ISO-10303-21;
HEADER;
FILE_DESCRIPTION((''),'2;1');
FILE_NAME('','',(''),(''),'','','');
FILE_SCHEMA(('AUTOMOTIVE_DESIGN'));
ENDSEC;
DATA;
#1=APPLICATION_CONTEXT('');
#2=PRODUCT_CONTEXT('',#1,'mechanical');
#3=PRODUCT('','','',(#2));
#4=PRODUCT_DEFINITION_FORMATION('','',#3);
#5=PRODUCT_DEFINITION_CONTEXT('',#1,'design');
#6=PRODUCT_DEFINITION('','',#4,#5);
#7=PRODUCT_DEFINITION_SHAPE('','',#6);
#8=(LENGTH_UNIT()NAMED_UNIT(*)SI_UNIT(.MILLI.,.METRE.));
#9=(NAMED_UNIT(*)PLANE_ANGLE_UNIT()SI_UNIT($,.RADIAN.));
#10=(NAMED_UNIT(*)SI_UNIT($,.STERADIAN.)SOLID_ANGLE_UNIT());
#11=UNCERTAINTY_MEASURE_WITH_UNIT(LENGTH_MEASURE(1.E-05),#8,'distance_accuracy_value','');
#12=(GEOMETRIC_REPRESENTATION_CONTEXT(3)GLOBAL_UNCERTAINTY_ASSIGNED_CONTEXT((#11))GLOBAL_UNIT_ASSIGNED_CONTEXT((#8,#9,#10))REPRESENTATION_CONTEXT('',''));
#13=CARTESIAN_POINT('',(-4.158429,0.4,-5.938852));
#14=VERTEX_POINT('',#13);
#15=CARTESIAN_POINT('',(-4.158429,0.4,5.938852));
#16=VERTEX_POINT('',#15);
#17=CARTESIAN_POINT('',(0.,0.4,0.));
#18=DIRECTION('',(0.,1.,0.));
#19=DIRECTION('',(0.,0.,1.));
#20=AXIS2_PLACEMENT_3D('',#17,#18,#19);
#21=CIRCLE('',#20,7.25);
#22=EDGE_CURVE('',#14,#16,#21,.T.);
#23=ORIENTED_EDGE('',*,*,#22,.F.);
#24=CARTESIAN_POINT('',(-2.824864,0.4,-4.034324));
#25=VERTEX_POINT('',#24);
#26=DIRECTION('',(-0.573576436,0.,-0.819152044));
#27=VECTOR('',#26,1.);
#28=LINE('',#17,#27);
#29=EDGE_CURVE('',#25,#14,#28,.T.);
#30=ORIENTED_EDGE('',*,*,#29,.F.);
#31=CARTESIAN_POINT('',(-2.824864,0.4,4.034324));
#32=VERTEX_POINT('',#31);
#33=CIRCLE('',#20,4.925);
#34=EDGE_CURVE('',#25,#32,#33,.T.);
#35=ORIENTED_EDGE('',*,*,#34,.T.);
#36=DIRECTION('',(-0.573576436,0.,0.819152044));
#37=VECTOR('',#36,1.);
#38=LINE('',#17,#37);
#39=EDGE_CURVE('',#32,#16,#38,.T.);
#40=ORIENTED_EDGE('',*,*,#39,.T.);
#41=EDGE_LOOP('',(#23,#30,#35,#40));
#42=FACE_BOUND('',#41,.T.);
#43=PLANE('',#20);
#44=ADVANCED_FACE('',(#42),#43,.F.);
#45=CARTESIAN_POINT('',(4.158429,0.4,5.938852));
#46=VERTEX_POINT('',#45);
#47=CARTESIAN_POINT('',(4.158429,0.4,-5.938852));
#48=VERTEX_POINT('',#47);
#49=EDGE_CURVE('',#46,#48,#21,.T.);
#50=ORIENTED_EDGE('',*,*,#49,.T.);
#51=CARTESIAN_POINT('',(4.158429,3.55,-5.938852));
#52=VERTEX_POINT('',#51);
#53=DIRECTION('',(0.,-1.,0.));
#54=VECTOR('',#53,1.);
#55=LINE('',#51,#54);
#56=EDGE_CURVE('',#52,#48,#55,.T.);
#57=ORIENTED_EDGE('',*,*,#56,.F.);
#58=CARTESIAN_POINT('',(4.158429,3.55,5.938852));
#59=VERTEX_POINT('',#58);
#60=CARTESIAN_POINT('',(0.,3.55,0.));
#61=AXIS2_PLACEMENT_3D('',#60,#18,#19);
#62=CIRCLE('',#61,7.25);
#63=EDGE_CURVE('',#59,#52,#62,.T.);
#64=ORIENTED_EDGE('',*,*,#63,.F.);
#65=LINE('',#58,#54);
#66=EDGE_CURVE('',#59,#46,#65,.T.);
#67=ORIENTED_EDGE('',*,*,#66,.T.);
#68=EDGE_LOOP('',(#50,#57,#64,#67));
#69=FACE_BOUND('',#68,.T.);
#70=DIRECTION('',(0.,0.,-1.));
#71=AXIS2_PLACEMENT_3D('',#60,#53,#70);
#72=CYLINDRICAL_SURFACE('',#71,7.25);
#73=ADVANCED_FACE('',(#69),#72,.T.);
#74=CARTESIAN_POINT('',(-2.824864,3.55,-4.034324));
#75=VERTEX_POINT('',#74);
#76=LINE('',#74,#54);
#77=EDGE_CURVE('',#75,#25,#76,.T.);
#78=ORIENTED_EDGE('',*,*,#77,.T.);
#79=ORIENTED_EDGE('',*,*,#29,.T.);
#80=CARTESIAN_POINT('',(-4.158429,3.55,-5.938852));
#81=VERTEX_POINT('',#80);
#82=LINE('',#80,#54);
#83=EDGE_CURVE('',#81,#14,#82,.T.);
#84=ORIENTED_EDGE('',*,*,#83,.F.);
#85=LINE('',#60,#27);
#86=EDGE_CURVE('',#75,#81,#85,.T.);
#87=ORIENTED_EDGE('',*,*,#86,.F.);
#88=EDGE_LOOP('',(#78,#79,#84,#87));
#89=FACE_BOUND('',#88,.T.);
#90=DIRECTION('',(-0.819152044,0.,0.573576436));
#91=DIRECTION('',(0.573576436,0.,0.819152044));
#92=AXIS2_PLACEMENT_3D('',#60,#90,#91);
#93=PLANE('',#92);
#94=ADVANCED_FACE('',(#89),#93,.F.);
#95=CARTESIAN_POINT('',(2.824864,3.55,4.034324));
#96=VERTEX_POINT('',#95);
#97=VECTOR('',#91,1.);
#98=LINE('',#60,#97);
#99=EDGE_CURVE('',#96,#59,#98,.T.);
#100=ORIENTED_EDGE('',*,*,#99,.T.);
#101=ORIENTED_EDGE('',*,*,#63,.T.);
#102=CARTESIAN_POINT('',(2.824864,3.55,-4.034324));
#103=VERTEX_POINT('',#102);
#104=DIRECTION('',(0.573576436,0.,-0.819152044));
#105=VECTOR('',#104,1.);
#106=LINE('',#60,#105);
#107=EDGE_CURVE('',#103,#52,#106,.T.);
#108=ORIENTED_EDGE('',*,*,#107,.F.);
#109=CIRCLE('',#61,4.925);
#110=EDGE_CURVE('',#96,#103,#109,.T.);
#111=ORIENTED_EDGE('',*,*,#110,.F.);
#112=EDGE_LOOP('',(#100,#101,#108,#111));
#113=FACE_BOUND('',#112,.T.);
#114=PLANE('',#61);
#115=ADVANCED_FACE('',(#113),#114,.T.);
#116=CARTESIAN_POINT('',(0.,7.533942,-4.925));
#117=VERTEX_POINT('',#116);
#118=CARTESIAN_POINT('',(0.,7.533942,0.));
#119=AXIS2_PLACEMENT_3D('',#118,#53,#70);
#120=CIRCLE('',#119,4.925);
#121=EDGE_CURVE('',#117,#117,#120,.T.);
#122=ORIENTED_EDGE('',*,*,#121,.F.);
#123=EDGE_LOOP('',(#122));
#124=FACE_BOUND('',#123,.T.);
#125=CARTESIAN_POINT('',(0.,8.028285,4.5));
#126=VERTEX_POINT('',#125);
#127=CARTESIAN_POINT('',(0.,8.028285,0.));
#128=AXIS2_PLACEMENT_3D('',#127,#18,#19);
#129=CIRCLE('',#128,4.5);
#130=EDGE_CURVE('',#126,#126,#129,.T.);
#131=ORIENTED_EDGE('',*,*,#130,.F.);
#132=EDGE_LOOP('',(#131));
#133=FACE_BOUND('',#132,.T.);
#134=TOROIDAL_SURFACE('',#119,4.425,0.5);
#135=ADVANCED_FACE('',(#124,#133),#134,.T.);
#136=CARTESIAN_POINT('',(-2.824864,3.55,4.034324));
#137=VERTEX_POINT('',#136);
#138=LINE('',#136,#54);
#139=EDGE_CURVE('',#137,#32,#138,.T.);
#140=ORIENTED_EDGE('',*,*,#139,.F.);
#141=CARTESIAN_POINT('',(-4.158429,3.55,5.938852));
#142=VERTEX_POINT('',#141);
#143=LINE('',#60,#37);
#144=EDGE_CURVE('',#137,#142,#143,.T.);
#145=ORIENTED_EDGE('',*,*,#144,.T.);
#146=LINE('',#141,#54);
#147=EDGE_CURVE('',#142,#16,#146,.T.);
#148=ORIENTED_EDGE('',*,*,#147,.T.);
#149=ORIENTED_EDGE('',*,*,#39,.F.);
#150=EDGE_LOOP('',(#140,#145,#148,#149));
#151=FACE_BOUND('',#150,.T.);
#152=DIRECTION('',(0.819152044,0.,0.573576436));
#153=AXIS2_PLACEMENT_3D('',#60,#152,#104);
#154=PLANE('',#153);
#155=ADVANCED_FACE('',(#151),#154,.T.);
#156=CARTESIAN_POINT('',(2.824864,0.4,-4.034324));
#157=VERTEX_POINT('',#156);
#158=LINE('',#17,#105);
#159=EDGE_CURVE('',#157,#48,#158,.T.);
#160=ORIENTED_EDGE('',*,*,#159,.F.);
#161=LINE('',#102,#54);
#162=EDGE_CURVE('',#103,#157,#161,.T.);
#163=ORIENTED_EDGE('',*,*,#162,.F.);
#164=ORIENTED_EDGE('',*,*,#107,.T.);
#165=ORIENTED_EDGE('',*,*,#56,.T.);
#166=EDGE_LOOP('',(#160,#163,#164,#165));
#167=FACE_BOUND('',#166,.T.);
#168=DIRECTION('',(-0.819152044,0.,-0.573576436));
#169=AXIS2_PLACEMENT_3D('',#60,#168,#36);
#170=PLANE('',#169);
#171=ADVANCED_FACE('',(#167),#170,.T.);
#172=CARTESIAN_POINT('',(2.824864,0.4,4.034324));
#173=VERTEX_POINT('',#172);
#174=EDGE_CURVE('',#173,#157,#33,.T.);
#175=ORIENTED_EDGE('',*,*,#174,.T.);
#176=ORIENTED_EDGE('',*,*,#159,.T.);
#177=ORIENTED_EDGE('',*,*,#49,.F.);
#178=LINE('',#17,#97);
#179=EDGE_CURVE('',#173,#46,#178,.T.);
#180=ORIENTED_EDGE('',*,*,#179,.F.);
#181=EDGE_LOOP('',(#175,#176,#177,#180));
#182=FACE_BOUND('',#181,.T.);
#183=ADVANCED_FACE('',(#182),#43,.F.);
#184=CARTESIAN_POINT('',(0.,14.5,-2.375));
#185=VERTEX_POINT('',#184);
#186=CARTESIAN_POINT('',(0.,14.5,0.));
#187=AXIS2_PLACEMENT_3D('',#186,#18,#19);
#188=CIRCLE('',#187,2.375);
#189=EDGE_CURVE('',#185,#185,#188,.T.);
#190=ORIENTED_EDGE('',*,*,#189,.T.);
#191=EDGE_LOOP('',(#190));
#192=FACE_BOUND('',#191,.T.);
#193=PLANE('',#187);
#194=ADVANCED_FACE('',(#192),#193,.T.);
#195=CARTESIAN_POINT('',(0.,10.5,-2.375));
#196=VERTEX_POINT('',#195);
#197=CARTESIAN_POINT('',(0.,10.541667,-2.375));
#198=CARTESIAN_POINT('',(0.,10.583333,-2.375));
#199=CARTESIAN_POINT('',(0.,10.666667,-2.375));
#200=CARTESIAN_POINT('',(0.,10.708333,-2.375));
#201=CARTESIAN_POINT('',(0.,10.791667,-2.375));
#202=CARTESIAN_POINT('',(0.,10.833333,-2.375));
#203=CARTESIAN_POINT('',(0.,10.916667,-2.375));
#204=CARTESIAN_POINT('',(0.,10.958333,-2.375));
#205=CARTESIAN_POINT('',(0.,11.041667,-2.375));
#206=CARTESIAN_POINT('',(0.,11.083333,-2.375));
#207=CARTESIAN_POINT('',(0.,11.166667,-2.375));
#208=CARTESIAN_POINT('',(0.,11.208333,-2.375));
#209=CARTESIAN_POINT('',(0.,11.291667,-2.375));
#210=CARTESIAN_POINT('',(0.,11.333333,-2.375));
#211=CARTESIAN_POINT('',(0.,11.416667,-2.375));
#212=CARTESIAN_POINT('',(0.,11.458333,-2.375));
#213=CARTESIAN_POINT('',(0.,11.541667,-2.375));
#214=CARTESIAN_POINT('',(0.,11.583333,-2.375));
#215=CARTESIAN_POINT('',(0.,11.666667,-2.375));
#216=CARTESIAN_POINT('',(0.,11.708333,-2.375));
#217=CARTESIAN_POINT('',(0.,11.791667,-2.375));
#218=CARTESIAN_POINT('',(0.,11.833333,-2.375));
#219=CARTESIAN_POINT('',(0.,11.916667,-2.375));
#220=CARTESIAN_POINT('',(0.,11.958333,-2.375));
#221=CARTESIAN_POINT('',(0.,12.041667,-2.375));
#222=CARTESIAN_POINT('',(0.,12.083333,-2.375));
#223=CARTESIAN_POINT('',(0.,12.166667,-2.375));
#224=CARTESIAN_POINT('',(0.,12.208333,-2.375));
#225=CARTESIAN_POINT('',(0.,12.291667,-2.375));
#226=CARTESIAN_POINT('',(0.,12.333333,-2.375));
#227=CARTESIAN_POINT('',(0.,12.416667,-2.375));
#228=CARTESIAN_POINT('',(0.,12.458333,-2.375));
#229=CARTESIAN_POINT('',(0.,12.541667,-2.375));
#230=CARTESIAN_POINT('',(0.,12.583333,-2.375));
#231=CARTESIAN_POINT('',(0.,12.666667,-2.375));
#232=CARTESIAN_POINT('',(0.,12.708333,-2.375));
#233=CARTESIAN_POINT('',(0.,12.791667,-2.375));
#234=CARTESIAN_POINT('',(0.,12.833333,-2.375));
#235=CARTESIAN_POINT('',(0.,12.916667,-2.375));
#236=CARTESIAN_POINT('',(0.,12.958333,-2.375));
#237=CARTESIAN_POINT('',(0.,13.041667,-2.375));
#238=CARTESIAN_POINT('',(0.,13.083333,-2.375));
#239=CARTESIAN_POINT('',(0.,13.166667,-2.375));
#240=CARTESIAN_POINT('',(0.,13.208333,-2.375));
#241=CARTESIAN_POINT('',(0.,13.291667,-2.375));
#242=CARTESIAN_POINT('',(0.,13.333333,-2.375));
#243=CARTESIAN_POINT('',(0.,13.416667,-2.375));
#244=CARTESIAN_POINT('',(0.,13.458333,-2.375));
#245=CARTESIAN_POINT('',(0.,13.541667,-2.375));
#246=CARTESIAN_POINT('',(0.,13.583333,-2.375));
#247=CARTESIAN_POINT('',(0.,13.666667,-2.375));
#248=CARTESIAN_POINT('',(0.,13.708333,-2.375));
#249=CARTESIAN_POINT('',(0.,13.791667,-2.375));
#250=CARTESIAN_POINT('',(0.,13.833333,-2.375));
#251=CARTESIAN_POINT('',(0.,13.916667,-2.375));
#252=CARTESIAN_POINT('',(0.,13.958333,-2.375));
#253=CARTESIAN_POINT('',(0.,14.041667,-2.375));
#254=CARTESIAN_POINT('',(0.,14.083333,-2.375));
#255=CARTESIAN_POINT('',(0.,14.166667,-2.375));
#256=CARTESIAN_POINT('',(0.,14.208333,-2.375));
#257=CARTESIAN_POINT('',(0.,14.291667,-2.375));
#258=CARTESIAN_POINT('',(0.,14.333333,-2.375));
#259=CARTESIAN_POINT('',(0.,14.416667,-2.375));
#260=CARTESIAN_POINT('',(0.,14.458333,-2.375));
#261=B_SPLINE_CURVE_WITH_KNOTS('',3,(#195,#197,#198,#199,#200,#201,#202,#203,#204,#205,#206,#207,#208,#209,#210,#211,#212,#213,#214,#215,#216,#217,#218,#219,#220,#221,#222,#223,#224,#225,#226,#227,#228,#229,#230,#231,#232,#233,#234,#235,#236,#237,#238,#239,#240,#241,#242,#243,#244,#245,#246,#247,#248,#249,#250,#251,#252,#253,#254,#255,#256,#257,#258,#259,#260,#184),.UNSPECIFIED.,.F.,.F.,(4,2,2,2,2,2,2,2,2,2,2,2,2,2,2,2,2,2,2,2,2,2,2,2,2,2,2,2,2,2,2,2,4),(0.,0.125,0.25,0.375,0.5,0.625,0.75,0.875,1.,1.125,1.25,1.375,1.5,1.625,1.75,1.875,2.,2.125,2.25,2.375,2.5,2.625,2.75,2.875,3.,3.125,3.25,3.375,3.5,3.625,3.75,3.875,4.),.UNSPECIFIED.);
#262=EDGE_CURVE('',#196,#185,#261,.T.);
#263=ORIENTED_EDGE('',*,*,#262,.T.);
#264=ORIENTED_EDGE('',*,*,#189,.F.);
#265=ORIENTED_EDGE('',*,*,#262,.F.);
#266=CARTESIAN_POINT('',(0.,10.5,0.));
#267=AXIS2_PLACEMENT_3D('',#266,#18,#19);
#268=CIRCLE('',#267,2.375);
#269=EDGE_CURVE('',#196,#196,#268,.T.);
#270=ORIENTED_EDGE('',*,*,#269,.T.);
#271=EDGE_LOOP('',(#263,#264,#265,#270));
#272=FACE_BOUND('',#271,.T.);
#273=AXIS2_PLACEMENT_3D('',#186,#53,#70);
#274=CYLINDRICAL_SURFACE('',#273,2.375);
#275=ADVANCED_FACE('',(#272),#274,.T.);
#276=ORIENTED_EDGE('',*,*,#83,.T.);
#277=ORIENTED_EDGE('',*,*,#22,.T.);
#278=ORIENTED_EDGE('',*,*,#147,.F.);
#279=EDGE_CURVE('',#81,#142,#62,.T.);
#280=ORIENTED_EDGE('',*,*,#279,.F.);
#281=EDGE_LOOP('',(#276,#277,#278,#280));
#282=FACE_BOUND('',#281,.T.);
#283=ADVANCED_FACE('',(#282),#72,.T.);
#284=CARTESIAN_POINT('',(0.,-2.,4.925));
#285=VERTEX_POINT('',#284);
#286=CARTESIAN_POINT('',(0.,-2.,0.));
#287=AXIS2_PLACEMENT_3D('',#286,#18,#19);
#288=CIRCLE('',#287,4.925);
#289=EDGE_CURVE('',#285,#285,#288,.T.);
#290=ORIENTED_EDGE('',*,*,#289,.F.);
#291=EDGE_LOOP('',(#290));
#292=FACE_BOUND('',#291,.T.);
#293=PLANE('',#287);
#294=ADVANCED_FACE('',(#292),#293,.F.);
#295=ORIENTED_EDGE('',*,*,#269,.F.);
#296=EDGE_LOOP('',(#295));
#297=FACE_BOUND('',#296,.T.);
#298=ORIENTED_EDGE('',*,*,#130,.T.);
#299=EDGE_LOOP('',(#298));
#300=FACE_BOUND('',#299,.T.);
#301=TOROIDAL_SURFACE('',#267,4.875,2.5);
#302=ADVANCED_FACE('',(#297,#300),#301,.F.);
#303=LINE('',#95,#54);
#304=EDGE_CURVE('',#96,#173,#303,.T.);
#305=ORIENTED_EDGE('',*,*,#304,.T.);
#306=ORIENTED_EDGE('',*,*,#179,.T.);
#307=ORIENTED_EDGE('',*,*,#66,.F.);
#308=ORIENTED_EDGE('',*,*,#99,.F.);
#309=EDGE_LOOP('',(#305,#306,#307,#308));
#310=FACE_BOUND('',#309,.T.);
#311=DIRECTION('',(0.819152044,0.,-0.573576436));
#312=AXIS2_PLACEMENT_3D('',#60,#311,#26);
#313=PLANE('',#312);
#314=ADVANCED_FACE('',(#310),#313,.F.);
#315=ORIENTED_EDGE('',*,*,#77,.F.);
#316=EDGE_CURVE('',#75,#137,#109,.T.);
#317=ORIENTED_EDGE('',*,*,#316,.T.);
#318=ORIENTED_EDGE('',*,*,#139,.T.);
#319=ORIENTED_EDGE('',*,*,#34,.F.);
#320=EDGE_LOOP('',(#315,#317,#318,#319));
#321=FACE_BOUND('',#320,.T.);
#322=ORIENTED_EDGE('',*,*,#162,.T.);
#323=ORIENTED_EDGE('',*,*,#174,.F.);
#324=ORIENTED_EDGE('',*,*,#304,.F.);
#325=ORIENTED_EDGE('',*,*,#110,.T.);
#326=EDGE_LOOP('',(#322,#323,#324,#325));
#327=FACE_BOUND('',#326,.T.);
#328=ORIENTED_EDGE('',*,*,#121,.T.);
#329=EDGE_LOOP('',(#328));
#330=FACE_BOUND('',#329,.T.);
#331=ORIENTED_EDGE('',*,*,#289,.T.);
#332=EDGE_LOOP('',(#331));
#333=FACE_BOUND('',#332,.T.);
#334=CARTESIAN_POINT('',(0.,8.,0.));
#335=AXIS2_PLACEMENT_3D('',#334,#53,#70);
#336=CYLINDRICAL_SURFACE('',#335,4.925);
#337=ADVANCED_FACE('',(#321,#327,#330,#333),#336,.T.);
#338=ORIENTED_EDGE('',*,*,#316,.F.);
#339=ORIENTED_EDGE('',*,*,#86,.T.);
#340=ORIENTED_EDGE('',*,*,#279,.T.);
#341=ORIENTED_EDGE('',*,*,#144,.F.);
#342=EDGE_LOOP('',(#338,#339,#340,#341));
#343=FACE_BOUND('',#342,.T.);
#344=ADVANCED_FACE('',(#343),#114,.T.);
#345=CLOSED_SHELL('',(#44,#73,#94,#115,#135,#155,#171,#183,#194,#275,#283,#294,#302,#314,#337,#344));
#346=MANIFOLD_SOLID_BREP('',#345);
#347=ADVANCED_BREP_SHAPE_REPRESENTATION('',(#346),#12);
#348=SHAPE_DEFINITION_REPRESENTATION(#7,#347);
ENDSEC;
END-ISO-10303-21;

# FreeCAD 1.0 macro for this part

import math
import FreeCAD as App
import Part
import Sketcher

V = App.Vector
Q = App.Units.Quantity


def edges_at(feature, points):
    """Names of the edges that pass closest to the given points."""
    edges = feature.Shape.Edges
    near = lambda p: min(range(len(edges)), key=lambda i: edges[i].distToShape(Part.Vertex(*p))[0])
    return sorted({f"Edge{near(p) + 1}" for p in points})

doc = App.newDocument("Part")
params = doc.addObject("Spreadsheet::Sheet", "Params")
for row, (alias, value) in enumerate([
    ("sketch1_radius", "7.25 mm"),
    ("pad1_length", "3.15 mm"),
    ("sketch2_radius", "7.25 mm"),
    ("pad2_length", "3.15 mm"),
    ("sketch3_diameter", "9.85 mm"),
    ("pad3_length", "8 mm"),
    ("sketch4_diameter", "9.85 mm"),
    ("pad4_length", "2 mm"),
    ("sketch5_diameter", "4.75 mm"),
    ("pad5_length", "6.5 mm"),
    ("fillet_radius", "2.5 mm"),
    ("fillet2_radius", "0.5 mm"),
], start=1):
    params.set(f"A{row}", alias)
    params.set(f"B{row}", "=" + value)
    params.setAlias(f"B{row}", alias)

body = doc.addObject("PartDesign::Body", "Body")

sketch1 = doc.addObject("Sketcher::SketchObject", "Sketch")
body.addObject(sketch1)
sketch1.AttachmentSupport = (doc.XZ_Plane, [""])
sketch1.MapMode = "FlatFace"
sketch1.AttachmentOffset = App.Placement(V(0, 0, -0.4), App.Rotation())
sketch1.addGeometry(Part.ArcOfCircle(Part.Circle(V(0, 0, 0), V(0, 0, 1), 4.9), math.radians(125), math.radians(235)), False)
sketch1.addGeometry(Part.LineSegment(V(-2.8, -4, 0), V(-4.2, -5.9, 0)), False)
sketch1.addGeometry(Part.ArcOfCircle(Part.Circle(V(0, 0, 0), V(0, 0, 1), 7.2), math.radians(125), math.radians(235)), False)
sketch1.addGeometry(Part.LineSegment(V(-4.2, 5.9, 0), V(-2.8, 4, 0)), False)
sketch1.addConstraint(Sketcher.Constraint("Coincident", 0, 2, 1, 1))
sketch1.addConstraint(Sketcher.Constraint("Coincident", 1, 2, 2, 2))
sketch1.addConstraint(Sketcher.Constraint("Coincident", 2, 1, 3, 1))
sketch1.addConstraint(Sketcher.Constraint("Coincident", 3, 2, 0, 1))
sketch1.addConstraint(Sketcher.Constraint("Coincident", 0, 3, -1, 1))
sketch1.addConstraint(Sketcher.Constraint("Coincident", 2, 3, -1, 1))
sketch1.addConstraint(Sketcher.Constraint("Vertical", 1, 2, 2, 1))
sketch1.addConstraint(Sketcher.Constraint("Vertical", 0, 2, 3, 2))
sketch1.addConstraint(Sketcher.Constraint("Angle", 1, Q("-125 deg")))
sketch1.addConstraint(Sketcher.Constraint("Radius", 2, Q("7.25 mm")))
sketch1.addConstraint(Sketcher.Constraint("Radius", 0, Q("4.925 mm")))
sketch1.addConstraint(Sketcher.Constraint("DistanceX", 1, 2, -1, 1, Q("4.158429 mm")))
sketch1.setExpression("Constraints[9]", "Params.sketch1_radius")
pad1 = doc.addObject("PartDesign::Pad", "Pad")
body.addObject(pad1)
pad1.Profile = sketch1
pad1.setExpression("Length", "Params.pad1_length")
pad1.Reversed = True
body2 = doc.addObject("PartDesign::Body", "Body001")

sketch2 = doc.addObject("Sketcher::SketchObject", "Sketch001")
body2.addObject(sketch2)
sketch2.AttachmentSupport = (doc.getObject("XZ_Plane001"), [""])
sketch2.MapMode = "FlatFace"
sketch2.AttachmentOffset = App.Placement(V(0, 0, -0.4), App.Rotation())
sketch2.addGeometry(Part.LineSegment(V(4.2, -5.9, 0), V(2.8, -4, 0)), False)
sketch2.addGeometry(Part.ArcOfCircle(Part.Circle(V(0, 0, 0), V(0, 0, 1), 4.9), math.radians(-55), math.radians(0)), False)
sketch2.addGeometry(Part.ArcOfCircle(Part.Circle(V(0, 0, 0), V(0, 0, 1), 4.9), math.radians(0), math.radians(55)), False)
sketch2.addGeometry(Part.LineSegment(V(2.8, 4, 0), V(4.2, 5.9, 0)), False)
sketch2.addGeometry(Part.ArcOfCircle(Part.Circle(V(0, 0, 0), V(0, 0, 1), 7.2), math.radians(-55), math.radians(55)), False)
sketch2.addConstraint(Sketcher.Constraint("Coincident", 0, 2, 1, 1))
sketch2.addConstraint(Sketcher.Constraint("Tangent", 1, 2, 2, 1))
sketch2.addConstraint(Sketcher.Constraint("Coincident", 2, 2, 3, 1))
sketch2.addConstraint(Sketcher.Constraint("Coincident", 3, 2, 4, 2))
sketch2.addConstraint(Sketcher.Constraint("Coincident", 4, 1, 0, 1))
sketch2.addConstraint(Sketcher.Constraint("Coincident", 1, 3, -1, 1))
sketch2.addConstraint(Sketcher.Constraint("Coincident", 4, 3, -1, 1))
sketch2.addConstraint(Sketcher.Constraint("Equal", 1, 2))
sketch2.addConstraint(Sketcher.Constraint("PointOnObject", 1, 2, -1))
sketch2.addConstraint(Sketcher.Constraint("Vertical", 0, 2, 2, 2))
sketch2.addConstraint(Sketcher.Constraint("Vertical", 3, 2, 4, 1))
sketch2.addConstraint(Sketcher.Constraint("Angle", 0, Q("125 deg")))
sketch2.addConstraint(Sketcher.Constraint("Radius", 4, Q("7.25 mm")))
sketch2.addConstraint(Sketcher.Constraint("Radius", 1, Q("4.925 mm")))
sketch2.addConstraint(Sketcher.Constraint("DistanceX", -1, 1, 3, 2, Q("4.158429 mm")))
sketch2.setExpression("Constraints[12]", "Params.sketch2_radius")
pad2 = doc.addObject("PartDesign::Pad", "Pad001")
body2.addObject(pad2)
pad2.Profile = sketch2
pad2.setExpression("Length", "Params.pad2_length")
pad2.Reversed = True
body.AllowCompound = True
doc.recompute()

boolean = doc.addObject("PartDesign::Boolean", "Boolean")
body.addObject(boolean)
boolean.Type = "Fuse"
boolean.addObjects([body2])

sketch3 = doc.addObject("Sketcher::SketchObject", "Sketch002")
body.addObject(sketch3)
sketch3.AttachmentSupport = (doc.XZ_Plane, [""])
sketch3.MapMode = "FlatFace"
sketch3.addGeometry(Part.Circle(V(0, 0, 0), V(0, 0, 1), 4.9), False)
sketch3.addConstraint(Sketcher.Constraint("Coincident", 0, 3, -1, 1))
sketch3.addConstraint(Sketcher.Constraint("Diameter", 0, Q("9.85 mm")))
sketch3.setExpression("Constraints[1]", "Params.sketch3_diameter")
pad3 = doc.addObject("PartDesign::Pad", "Pad002")
body.addObject(pad3)
pad3.Profile = sketch3
pad3.setExpression("Length", "Params.pad3_length")
pad3.Reversed = True

sketch4 = doc.addObject("Sketcher::SketchObject", "Sketch003")
body.addObject(sketch4)
sketch4.AttachmentSupport = (doc.XZ_Plane, [""])
sketch4.MapMode = "FlatFace"
sketch4.AttachmentOffset = App.Placement(V(0, 0, 2), App.Rotation())
sketch4.addGeometry(Part.Circle(V(0, 0, 0), V(0, 0, 1), 4.9), False)
sketch4.addConstraint(Sketcher.Constraint("Coincident", 0, 3, -1, 1))
sketch4.addConstraint(Sketcher.Constraint("Diameter", 0, Q("9.85 mm")))
sketch4.setExpression("Constraints[1]", "Params.sketch4_diameter")
pad4 = doc.addObject("PartDesign::Pad", "Pad003")
body.addObject(pad4)
pad4.Profile = sketch4
pad4.setExpression("Length", "Params.pad4_length")
pad4.Reversed = True

sketch5 = doc.addObject("Sketcher::SketchObject", "Sketch004")
body.addObject(sketch5)
sketch5.AttachmentSupport = (doc.XZ_Plane, [""])
sketch5.MapMode = "FlatFace"
sketch5.AttachmentOffset = App.Placement(V(0, 0, -8), App.Rotation())
sketch5.addGeometry(Part.Circle(V(0, 0, 0), V(0, 0, 1), 2.4), False)
sketch5.addConstraint(Sketcher.Constraint("Coincident", 0, 3, -1, 1))
sketch5.addConstraint(Sketcher.Constraint("Diameter", 0, Q("4.75 mm")))
sketch5.setExpression("Constraints[1]", "Params.sketch5_diameter")
pad5 = doc.addObject("PartDesign::Pad", "Pad004")
body.addObject(pad5)
pad5.Profile = sketch5
pad5.setExpression("Length", "Params.pad5_length")
pad5.Reversed = True
doc.recompute()

fillet = doc.addObject("PartDesign::Fillet", "Fillet")
body.addObject(fillet)
fillet.Base = (pad5, edges_at(pad5, [(0, 8, 2.375)]))
fillet.setExpression("Radius", "Params.fillet_radius")
doc.recompute()

fillet2 = doc.addObject("PartDesign::Fillet", "Fillet001")
body.addObject(fillet2)
fillet2.Base = (fillet, edges_at(fillet, [(0, 8, -4.925)]))
fillet2.setExpression("Radius", "Params.fillet2_radius")

doc.recompute()
